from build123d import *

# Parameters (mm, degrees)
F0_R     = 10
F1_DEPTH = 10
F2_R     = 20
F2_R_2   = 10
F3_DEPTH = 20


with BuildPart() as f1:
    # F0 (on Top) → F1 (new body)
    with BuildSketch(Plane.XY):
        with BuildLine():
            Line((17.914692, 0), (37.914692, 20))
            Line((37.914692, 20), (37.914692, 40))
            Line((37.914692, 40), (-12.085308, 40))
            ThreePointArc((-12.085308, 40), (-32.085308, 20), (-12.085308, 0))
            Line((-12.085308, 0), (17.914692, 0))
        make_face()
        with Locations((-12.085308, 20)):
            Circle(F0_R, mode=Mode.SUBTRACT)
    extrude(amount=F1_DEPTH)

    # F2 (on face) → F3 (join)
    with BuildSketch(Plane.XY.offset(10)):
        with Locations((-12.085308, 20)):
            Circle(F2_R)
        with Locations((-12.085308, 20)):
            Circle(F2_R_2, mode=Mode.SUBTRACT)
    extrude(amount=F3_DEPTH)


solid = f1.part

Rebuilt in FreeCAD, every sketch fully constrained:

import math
import FreeCAD as App
import Part
import Sketcher

V = App.Vector
Q = App.Units.Quantity

doc = App.newDocument("Part")
body = doc.addObject("PartDesign::Body", "Body")

# Sketch on XY plane
sketch1 = doc.addObject("Sketcher::SketchObject", "Sketch")
body.addObject(sketch1)
sketch1.AttachmentSupport = (doc.XY_Plane, [""])
sketch1.MapMode = "FlatFace"
sketch1.addGeometry([
    Part.LineSegment(V(18, 0, 0), V(38, 20, 0)),  # 0
    Part.LineSegment(V(38, 20, 0), V(38, 40, 0)),  # 1
    Part.LineSegment(V(38, 40, 0), V(-12, 40, 0)),  # 2
    Part.ArcOfCircle(Part.Circle(V(-12, 20, 0), V(0, 0, 1), 20), math.radians(90), math.radians(270)),  # 3
    Part.LineSegment(V(-12, 0, 0), V(18, 0, 0)),  # 4
    Part.Circle(V(-12, 20, 0), V(0, 0, 1), 10),  # 5
], False)
sketch1.addConstraint([
    Sketcher.Constraint("Coincident", 0, 2, 1, 1),
    Sketcher.Constraint("Coincident", 1, 2, 2, 1),
    Sketcher.Constraint("Tangent", 2, 2, 3, 1),
    Sketcher.Constraint("Tangent", 3, 2, 4, 1),
    Sketcher.Constraint("Coincident", 4, 2, 0, 1),
    Sketcher.Constraint("Vertical", 1),
    Sketcher.Constraint("Horizontal", 2),
    Sketcher.Constraint("Horizontal", 4),
    Sketcher.Constraint("Coincident", 5, 3, 3, 3),
    Sketcher.Constraint("PointOnObject", 3, 2, -1),
    Sketcher.Constraint("Horizontal", 5, 3, 0, 2),
    Sketcher.Constraint("Diameter", 5, Q("20 mm")),
    Sketcher.Constraint("Radius", 3, Q("20 mm")),
    Sketcher.Constraint("DistanceX", 2, 2, 2, 1, Q("50 mm")),
    Sketcher.Constraint("DistanceX", 4, 1, 4, 2, Q("30 mm")),
    Sketcher.Constraint("DistanceX", -1, 1, 4, 2, Q("17.914692 mm")),
])
pad1 = doc.addObject("PartDesign::Pad", "Pad")
body.addObject(pad1)
pad1.Profile = sketch1
pad1.Length = 10

# Sketch on XY plane
sketch2 = doc.addObject("Sketcher::SketchObject", "Sketch001")
body.addObject(sketch2)
sketch2.AttachmentSupport = (doc.XY_Plane, [""])
sketch2.MapMode = "FlatFace"
sketch2.AttachmentOffset = App.Placement(V(0, 0, 10), App.Rotation())
sketch2.addGeometry([
    Part.Circle(V(-12, 20, 0), V(0, 0, 1), 20),
    Part.Circle(V(-12, 20, 0), V(0, 0, 1), 10),
], False)
sketch2.addConstraint([
    Sketcher.Constraint("Coincident", 1, 3, 0, 3),
    Sketcher.Constraint("Diameter", 0, Q("40 mm")),
    Sketcher.Constraint("Diameter", 1, Q("20 mm")),
    Sketcher.Constraint("DistanceY", -1, 1, 0, 3, Q("20 mm")),
    Sketcher.Constraint("DistanceX", 0, 3, -1, 1, Q("12.085308 mm")),
])
pad2 = doc.addObject("PartDesign::Pad", "Pad001")
body.addObject(pad2)
pad2.Profile = sketch2
pad2.Length = 20

doc.recompute()
